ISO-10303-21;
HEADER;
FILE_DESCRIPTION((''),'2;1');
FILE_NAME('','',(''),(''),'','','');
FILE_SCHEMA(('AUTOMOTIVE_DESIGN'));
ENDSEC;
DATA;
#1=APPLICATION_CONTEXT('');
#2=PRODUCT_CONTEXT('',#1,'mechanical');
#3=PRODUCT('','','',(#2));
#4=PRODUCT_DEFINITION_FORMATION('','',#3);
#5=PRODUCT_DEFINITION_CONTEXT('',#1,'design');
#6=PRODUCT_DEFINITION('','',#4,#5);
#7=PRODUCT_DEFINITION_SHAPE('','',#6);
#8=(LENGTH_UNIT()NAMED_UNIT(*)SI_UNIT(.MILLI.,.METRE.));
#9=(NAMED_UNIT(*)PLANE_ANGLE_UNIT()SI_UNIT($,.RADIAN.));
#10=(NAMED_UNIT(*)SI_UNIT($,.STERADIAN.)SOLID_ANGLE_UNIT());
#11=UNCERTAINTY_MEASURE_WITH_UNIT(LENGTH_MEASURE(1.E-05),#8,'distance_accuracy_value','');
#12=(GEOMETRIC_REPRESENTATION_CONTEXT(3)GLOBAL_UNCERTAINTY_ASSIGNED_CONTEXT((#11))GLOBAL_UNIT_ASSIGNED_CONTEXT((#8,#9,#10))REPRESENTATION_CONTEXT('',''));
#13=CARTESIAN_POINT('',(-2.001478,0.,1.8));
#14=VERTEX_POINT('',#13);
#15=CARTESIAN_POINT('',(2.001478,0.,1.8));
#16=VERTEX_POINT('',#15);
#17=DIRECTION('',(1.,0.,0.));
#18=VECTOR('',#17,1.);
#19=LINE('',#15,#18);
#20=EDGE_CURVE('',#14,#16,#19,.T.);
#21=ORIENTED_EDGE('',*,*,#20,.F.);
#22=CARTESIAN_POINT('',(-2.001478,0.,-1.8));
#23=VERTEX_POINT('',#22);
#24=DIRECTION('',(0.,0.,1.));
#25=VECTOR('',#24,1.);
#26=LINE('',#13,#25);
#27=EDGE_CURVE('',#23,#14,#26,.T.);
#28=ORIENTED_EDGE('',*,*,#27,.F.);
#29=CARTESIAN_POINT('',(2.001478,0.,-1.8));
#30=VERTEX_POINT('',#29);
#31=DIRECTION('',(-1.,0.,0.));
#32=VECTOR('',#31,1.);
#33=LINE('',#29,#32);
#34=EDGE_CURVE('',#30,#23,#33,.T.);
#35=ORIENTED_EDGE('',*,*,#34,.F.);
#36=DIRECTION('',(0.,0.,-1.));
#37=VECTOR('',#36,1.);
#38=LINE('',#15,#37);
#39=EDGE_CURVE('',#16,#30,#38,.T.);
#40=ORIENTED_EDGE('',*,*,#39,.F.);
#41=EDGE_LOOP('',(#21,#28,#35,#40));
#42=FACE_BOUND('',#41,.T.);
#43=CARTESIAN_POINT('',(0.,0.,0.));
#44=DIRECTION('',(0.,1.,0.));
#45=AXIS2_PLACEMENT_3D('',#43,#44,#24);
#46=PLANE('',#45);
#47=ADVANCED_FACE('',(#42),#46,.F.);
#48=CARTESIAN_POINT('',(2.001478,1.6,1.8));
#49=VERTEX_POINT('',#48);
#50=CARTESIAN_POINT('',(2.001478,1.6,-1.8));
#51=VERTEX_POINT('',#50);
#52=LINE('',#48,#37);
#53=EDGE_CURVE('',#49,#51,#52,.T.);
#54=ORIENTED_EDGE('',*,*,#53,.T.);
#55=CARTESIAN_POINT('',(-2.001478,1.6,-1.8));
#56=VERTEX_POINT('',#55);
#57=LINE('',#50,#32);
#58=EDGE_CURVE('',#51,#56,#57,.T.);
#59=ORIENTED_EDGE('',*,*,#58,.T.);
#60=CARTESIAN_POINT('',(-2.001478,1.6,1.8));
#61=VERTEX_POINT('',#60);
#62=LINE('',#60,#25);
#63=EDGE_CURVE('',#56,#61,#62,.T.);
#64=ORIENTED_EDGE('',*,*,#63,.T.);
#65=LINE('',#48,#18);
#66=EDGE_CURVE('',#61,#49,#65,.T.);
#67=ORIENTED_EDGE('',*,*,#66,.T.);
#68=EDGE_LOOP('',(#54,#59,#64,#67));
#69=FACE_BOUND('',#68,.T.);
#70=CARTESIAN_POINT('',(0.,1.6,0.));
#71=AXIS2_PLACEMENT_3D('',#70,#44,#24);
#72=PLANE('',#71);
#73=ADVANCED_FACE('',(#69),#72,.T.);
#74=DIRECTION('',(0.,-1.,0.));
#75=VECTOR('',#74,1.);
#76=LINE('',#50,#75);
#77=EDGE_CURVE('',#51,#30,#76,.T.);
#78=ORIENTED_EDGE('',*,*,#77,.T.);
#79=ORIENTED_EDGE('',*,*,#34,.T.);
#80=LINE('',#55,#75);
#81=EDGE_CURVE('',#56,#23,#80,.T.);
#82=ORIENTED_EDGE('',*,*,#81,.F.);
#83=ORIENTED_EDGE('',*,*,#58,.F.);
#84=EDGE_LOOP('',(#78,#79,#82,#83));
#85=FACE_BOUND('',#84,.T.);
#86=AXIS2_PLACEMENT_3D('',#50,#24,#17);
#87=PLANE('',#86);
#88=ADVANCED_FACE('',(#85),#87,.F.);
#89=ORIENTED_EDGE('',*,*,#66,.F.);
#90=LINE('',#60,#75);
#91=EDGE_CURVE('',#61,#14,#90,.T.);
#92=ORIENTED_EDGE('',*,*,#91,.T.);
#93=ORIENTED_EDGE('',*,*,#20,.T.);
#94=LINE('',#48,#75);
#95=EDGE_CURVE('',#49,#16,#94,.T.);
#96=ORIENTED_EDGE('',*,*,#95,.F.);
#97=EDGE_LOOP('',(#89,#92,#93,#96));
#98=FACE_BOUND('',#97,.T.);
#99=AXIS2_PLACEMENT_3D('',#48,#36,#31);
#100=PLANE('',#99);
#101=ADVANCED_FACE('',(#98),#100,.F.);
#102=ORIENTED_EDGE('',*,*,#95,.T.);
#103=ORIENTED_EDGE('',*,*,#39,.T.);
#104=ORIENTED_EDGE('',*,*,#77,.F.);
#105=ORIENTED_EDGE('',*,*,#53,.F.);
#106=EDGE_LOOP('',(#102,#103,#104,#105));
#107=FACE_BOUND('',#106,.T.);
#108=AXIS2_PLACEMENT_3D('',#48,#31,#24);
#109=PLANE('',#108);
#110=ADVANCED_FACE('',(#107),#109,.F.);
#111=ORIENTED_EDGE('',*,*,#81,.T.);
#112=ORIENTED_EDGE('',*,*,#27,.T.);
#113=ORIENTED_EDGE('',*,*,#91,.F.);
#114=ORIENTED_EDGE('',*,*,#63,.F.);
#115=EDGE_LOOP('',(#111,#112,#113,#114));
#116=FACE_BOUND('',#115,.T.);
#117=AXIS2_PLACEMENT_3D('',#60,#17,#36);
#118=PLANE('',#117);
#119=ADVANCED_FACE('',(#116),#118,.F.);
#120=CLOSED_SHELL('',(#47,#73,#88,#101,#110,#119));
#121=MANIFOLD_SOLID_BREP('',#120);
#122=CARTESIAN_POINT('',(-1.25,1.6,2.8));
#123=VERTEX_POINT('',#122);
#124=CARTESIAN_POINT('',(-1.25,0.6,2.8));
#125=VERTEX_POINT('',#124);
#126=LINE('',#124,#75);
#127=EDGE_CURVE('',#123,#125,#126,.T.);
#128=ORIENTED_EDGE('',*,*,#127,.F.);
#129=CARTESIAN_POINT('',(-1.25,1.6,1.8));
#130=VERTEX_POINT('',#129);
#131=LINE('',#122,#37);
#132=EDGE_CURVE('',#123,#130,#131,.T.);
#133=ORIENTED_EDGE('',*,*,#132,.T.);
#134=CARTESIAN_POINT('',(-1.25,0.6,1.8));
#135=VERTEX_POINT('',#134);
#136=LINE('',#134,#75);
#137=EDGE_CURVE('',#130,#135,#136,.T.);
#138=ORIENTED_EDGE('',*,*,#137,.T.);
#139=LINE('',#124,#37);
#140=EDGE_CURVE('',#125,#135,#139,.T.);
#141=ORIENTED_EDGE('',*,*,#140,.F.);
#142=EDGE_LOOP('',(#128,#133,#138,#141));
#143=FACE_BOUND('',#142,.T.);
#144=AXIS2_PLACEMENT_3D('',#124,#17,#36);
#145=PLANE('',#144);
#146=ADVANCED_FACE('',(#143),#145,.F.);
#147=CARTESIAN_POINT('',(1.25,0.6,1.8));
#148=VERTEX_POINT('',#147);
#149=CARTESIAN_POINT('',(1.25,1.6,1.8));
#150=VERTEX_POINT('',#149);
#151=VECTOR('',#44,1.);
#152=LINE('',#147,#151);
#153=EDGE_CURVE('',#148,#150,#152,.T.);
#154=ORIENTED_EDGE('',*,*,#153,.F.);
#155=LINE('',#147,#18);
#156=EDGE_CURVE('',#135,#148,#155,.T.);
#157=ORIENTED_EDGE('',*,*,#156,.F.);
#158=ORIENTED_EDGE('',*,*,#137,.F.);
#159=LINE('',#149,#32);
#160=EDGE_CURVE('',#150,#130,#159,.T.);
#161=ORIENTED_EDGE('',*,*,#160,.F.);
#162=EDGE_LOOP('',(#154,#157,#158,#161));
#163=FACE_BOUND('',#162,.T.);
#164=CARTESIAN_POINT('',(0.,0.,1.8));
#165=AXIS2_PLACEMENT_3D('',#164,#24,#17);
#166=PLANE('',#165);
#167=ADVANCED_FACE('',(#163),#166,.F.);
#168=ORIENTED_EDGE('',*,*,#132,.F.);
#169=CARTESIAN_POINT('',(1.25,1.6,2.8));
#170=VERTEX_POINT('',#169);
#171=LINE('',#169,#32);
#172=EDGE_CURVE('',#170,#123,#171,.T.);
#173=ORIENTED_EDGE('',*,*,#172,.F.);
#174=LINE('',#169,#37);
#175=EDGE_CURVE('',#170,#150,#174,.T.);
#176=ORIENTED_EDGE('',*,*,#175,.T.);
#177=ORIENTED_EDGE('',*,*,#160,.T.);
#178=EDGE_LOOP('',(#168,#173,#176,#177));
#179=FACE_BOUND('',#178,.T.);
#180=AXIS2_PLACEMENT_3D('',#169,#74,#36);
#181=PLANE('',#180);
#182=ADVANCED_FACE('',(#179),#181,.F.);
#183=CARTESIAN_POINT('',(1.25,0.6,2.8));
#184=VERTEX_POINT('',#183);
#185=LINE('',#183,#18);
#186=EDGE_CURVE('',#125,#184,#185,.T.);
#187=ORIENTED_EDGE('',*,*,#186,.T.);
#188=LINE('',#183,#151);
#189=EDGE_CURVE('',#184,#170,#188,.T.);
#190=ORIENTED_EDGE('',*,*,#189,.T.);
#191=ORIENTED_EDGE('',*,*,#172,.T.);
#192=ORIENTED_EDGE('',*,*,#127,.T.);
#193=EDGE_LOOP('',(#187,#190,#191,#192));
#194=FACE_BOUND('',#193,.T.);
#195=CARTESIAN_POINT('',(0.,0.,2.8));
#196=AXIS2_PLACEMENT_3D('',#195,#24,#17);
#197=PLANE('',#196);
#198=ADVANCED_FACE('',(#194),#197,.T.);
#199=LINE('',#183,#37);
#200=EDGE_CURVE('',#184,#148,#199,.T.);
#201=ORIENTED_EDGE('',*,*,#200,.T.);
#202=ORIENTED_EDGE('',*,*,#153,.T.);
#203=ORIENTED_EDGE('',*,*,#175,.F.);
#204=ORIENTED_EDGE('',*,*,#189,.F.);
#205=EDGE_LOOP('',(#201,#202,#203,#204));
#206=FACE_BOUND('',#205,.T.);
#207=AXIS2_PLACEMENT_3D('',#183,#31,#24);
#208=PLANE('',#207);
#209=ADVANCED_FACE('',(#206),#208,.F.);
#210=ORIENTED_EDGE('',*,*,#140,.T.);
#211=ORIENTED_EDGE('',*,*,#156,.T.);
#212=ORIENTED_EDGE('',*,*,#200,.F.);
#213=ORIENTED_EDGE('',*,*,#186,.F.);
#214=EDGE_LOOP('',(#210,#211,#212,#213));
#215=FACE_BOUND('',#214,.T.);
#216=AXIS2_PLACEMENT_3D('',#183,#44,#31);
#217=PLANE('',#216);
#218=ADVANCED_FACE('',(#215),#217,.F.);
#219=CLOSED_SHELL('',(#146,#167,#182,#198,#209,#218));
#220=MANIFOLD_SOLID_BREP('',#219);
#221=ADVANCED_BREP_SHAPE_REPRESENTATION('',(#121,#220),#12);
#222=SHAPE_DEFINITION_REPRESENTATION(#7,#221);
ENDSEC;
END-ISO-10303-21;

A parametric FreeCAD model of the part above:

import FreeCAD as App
import Part
import Sketcher
from FreeCAD import Vector


def add_polygon(sketch, points):
    """Adds a closed chain of lines whose ends are joined by coincident constraints."""
    first, n = sketch.GeometryCount, len(points)
    for a, b in zip(points, points[1:] + points[:1]):
        sketch.addGeometry(Part.LineSegment(App.Vector(*a, 0), App.Vector(*b, 0)), False)
    for i in range(n):
        sketch.addConstraint(Sketcher.Constraint("Coincident", first + i, 2, first + (i + 1) % n, 1))

doc = App.newDocument("Part")
body = doc.addObject("PartDesign::Body", "Body")

sketch1 = doc.addObject("Sketcher::SketchObject", "Sketch")
body.addObject(sketch1)
sketch1.AttachmentSupport = (doc.XZ_Plane, [""])
sketch1.MapMode = "FlatFace"
add_polygon(sketch1, [(-2.001478, -1.8), (-2.001478, 1.8), (2.001478, 1.8), (2.001478, -1.8)])
sketch1.addConstraint([
    Sketcher.Constraint("Vertical", 0),
    Sketcher.Constraint("Horizontal", 1),
    Sketcher.Constraint("Vertical", 2),
    Sketcher.Constraint("Horizontal", 3),
    Sketcher.Constraint("Symmetric", 0, 2, 2, 2, -1, 1),
    Sketcher.Constraint("DistanceY", 0, 1, 0, 2, 3.6),
    Sketcher.Constraint("DistanceX", 1, 1, 1, 2, 4.002956),
])
pad1 = doc.addObject("PartDesign::Pad", "Pad")
body.addObject(pad1)
pad1.Profile = sketch1
pad1.Length = 1.6
pad1.Reversed = True
body2 = doc.addObject("PartDesign::Body", "Body001")

sketch2 = doc.addObject("Sketcher::SketchObject", "Sketch001")
body2.addObject(sketch2)
sketch2.AttachmentSupport = (doc.getObject("XY_Plane001"), [""])
sketch2.MapMode = "FlatFace"
sketch2.AttachmentOffset = App.Placement(Vector(0, 0, 1.8), App.Rotation())
add_polygon(sketch2, [(-1.25, 1.6), (-1.25, 0.6), (1.25, 0.6), (1.25, 1.6)])
sketch2.addConstraint([
    Sketcher.Constraint("Vertical", 0),
    Sketcher.Constraint("Horizontal", 1),
    Sketcher.Constraint("Vertical", 2),
    Sketcher.Constraint("Horizontal", 3),
    Sketcher.Constraint("DistanceY", 0, 2, 0, 1, 1.0),
    Sketcher.Constraint("DistanceX", 1, 1, 1, 2, 2.5),
    Sketcher.Constraint("DistanceY", -1, 1, 0, 2, 0.6),
    Sketcher.Constraint("DistanceX", 0, 2, -1, 1, 1.25),
])
pad2 = doc.addObject("PartDesign::Pad", "Pad001")
body2.addObject(pad2)
pad2.Profile = sketch2
pad2.Length = 1

doc.recompute()
